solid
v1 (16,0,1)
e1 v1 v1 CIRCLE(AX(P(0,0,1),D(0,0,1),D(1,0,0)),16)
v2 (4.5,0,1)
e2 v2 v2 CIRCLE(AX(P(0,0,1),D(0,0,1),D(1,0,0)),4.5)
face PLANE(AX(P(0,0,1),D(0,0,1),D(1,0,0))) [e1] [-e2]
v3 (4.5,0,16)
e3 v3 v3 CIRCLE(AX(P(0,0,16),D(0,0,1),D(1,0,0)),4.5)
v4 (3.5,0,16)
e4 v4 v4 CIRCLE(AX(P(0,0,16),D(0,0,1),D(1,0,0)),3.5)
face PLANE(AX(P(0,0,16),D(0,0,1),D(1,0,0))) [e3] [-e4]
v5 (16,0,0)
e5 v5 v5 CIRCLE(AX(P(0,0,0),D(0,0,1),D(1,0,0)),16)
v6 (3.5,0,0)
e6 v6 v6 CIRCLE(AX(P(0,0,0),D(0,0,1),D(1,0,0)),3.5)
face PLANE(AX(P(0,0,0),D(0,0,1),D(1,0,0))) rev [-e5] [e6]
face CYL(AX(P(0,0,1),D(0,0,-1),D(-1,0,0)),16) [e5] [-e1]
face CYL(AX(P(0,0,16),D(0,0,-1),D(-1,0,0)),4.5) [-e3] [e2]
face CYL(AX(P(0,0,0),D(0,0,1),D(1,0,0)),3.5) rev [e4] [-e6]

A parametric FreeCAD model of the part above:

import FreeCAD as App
import Part
import Sketcher
from FreeCAD import Vector
Q = App.Units.Quantity

doc = App.newDocument("Part")
body = doc.addObject("PartDesign::Body", "Body")

# Sketch on XY plane
sketch1 = body.newObject("Sketcher::SketchObject", "Sketch")
sketch1.AttachmentSupport = (doc.getObject("XY_Plane"), [""])
sketch1.MapMode = "FlatFace"
sketch1.addGeometry(Part.Circle(Vector(0, 0, 0), Vector(0, 0, 1), 16), False)
sketch1.addConstraint([
    Sketcher.Constraint("Coincident", 0, 3, -1, 1),
    Sketcher.Constraint("Diameter", 0, Q("32 mm")),
])
pad1 = body.newObject("PartDesign::Pad", "Pad")
pad1.Profile = sketch1
pad1.Length = 1

# Sketch on XY plane
sketch2 = body.newObject("Sketcher::SketchObject", "Sketch001")
sketch2.AttachmentSupport = (doc.getObject("XY_Plane"), [""])
sketch2.MapMode = "FlatFace"
sketch2.AttachmentOffset = App.Placement(Vector(0, 0, 1), App.Rotation())
sketch2.addGeometry(Part.Circle(Vector(0, 0, 0), Vector(0, 0, 1), 4.5), False)
sketch2.addConstraint([
    Sketcher.Constraint("Coincident", 0, 3, -1, 1),
    Sketcher.Constraint("Diameter", 0, Q("9 mm")),
])
pad2 = body.newObject("PartDesign::Pad", "Pad001")
pad2.Profile = sketch2
pad2.Length = 15

# Sketch on XY plane
sketch3 = body.newObject("Sketcher::SketchObject", "Sketch002")
sketch3.AttachmentSupport = (doc.getObject("XY_Plane"), [""])
sketch3.MapMode = "FlatFace"
sketch3.AttachmentOffset = App.Placement(Vector(0, 0, 16), App.Rotation())
sketch3.addGeometry(Part.Circle(Vector(0, 0, 0), Vector(0, 0, 1), 3.5), False)
sketch3.addConstraint([
    Sketcher.Constraint("Coincident", 0, 3, -1, 1),
    Sketcher.Constraint("Diameter", 0, Q("7 mm")),
])
pocket1 = body.newObject("PartDesign::Pocket", "Pocket")
pocket1.Profile = sketch3
pocket1.Type = "ThroughAll"
pocket1.Midplane = True

doc.recompute()
